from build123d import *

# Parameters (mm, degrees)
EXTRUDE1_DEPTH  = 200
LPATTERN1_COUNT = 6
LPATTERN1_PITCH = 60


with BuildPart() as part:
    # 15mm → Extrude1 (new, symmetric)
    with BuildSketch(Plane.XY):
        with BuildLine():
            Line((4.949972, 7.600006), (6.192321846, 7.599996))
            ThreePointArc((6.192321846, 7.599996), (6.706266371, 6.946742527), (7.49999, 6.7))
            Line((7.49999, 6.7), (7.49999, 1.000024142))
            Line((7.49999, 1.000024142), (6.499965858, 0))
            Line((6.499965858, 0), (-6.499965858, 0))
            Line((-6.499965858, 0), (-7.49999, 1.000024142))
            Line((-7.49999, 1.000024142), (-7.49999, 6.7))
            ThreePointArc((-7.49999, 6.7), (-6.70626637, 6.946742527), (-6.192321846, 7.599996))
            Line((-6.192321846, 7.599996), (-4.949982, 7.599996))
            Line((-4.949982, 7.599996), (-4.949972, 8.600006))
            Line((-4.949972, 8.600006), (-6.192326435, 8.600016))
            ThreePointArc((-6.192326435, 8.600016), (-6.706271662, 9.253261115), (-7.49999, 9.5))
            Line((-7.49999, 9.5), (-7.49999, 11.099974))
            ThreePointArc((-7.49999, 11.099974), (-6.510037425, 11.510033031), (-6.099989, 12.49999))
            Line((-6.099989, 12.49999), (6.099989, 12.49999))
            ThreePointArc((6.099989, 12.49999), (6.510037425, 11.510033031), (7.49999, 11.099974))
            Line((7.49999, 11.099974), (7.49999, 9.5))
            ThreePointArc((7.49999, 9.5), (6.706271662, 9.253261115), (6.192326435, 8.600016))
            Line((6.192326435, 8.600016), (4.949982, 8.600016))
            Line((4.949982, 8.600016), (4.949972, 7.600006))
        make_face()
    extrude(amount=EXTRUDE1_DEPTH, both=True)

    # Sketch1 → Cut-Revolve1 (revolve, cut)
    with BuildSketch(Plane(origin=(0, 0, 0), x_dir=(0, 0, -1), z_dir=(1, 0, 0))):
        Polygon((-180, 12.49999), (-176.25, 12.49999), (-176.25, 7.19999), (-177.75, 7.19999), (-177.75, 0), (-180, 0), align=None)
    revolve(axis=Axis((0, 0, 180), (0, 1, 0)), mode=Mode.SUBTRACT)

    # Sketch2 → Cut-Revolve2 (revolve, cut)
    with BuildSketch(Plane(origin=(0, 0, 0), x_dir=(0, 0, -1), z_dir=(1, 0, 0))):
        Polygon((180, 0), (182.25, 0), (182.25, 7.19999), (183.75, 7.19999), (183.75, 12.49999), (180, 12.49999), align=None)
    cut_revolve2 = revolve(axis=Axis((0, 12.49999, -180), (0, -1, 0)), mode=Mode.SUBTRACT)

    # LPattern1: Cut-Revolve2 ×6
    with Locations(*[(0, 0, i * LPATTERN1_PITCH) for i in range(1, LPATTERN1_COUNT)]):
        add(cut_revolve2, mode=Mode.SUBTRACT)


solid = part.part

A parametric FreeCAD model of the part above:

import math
import FreeCAD as App
import Part
import Sketcher

V = App.Vector
Q = App.Units.Quantity

doc = App.newDocument("Part")
body = doc.addObject("PartDesign::Body", "Body")

sketch1 = doc.addObject("Sketcher::SketchObject", "Sketch")
body.addObject(sketch1)
sketch1.AttachmentSupport = (doc.XY_Plane, [""])
sketch1.MapMode = "FlatFace"
sketch1.addGeometry([
    Part.LineSegment(V(6.192322, 7.599996, 0), V(4.949972, 7.600006, 0)),
    Part.LineSegment(V(4.949972, 7.600006, 0), V(4.949982, 8.600016, 0)),
    Part.LineSegment(V(4.949982, 8.600016, 0), V(6.192326, 8.600016, 0)),
    Part.ArcOfCircle(Part.Circle(V(7.49999, 8.1, 0), V(0, 0, 1), 1.4), math.radians(90), math.radians(159.074467)),
    Part.LineSegment(V(7.49999, 9.5, 0), V(7.49999, 11.099974, 0)),
    Part.ArcOfCircle(Part.Circle(V(7.5, 12.499985, 0), V(0, 0, 1), 1.400011), math.radians(179.999795), math.radians(269.999591)),
    Part.LineSegment(V(6.099989, 12.49999, 0), V(-6.099989, 12.49999, 0)),
    Part.ArcOfCircle(Part.Circle(V(-7.5, 12.499985, 0), V(0, 0, 1), 1.400011), math.radians(-89.999591), math.radians(0.000205)),
    Part.LineSegment(V(-7.49999, 11.099974, 0), V(-7.49999, 9.5, 0)),
    Part.ArcOfCircle(Part.Circle(V(-7.49999, 8.1, 0), V(0, 0, 1), 1.4), math.radians(20.925533), math.radians(90)),
    Part.LineSegment(V(-6.192326, 8.600016, 0), V(-4.949972, 8.600006, 0)),
    Part.LineSegment(V(-4.949972, 8.600006, 0), V(-4.949982, 7.599996, 0)),
    Part.LineSegment(V(-4.949982, 7.599996, 0), V(-6.192322, 7.599996, 0)),
    Part.ArcOfCircle(Part.Circle(V(-7.49999, 8.1, 0), V(0, 0, 1), 1.4), math.radians(-90), math.radians(-20.925008)),
    Part.LineSegment(V(-7.49999, 6.7, 0), V(-7.49999, 1.000024, 0)),
    Part.LineSegment(V(-7.49999, 1.000024, 0), V(-6.499966, 0, 0)),
    Part.LineSegment(V(-6.499966, 0, 0), V(6.499966, 0, 0)),
    Part.LineSegment(V(6.499966, 0, 0), V(7.49999, 1.000024, 0)),
    Part.LineSegment(V(7.49999, 1.000024, 0), V(7.49999, 6.7, 0)),
    Part.ArcOfCircle(Part.Circle(V(7.49999, 8.1, 0), V(0, 0, 1), 1.4), math.radians(-159.074992), math.radians(-90)),
], False)
sketch1.addConstraint([
    Sketcher.Constraint("Coincident", 0, 2, 1, 1),
    Sketcher.Constraint("Coincident", 1, 2, 2, 1),
    Sketcher.Constraint("Coincident", 2, 2, 3, 2),
    Sketcher.Constraint("Coincident", 3, 1, 4, 1),
    Sketcher.Constraint("Coincident", 4, 2, 5, 2),
    Sketcher.Constraint("Coincident", 5, 1, 6, 1),
    Sketcher.Constraint("Coincident", 6, 2, 7, 2),
    Sketcher.Constraint("Coincident", 7, 1, 8, 1),
    Sketcher.Constraint("Coincident", 8, 2, 9, 2),
    Sketcher.Constraint("Coincident", 9, 1, 10, 1),
    Sketcher.Constraint("Coincident", 10, 2, 11, 1),
    Sketcher.Constraint("Coincident", 11, 2, 12, 1),
    Sketcher.Constraint("Coincident", 12, 2, 13, 2),
    Sketcher.Constraint("Coincident", 13, 1, 14, 1),
    Sketcher.Constraint("Coincident", 14, 2, 15, 1),
    Sketcher.Constraint("Coincident", 15, 2, 16, 1),
    Sketcher.Constraint("Coincident", 16, 2, 17, 1),
    Sketcher.Constraint("Coincident", 17, 2, 18, 1),
    Sketcher.Constraint("Coincident", 18, 2, 19, 2),
    Sketcher.Constraint("Coincident", 19, 1, 0, 1),
    Sketcher.Constraint("Horizontal", 2),
    Sketcher.Constraint("Vertical", 4),
    Sketcher.Constraint("Horizontal", 6),
    Sketcher.Constraint("Vertical", 8),
    Sketcher.Constraint("Horizontal", 12),
    Sketcher.Constraint("Vertical", 14),
    Sketcher.Constraint("Horizontal", 16),
    Sketcher.Constraint("Vertical", 18),
    Sketcher.Constraint("Coincident", 13, 3, 9, 3),
    Sketcher.Constraint("Coincident", 19, 3, 3, 3),
    Sketcher.Constraint("Equal", 5, 7),
    Sketcher.Constraint("Equal", 3, 9),
    Sketcher.Constraint("Equal", 9, 13),
    Sketcher.Constraint("Equal", 13, 19),
    Sketcher.Constraint("Symmetric", 15, 2, 16, 2, -1, 1),
    Sketcher.Constraint("Symmetric", 5, 3, 7, 3, -2),
    Sketcher.Constraint("Symmetric", 3, 3, 9, 3, -2),
    Sketcher.Constraint("Symmetric", 14, 2, 17, 2, -2),
    Sketcher.Constraint("Perpendicular", 0, 1),
    Sketcher.Constraint("Perpendicular", 1, 10),
    Sketcher.Constraint("Perpendicular", 10, 11),
    Sketcher.Constraint("Perpendicular", 15, 17),
    Sketcher.Constraint("Horizontal", 2, 2, 9, 1),
    Sketcher.Constraint("Horizontal", 12, 2, 19, 1),
    Sketcher.Constraint("Vertical", 19, 3, 3, 1),
    Sketcher.Constraint("Vertical", 13, 3, 7, 1),
    Sketcher.Constraint("Vertical", 8, 2, 13, 1),
    Sketcher.Constraint("Radius", 3, Q("1.4 mm")),
    Sketcher.Constraint("DistanceX", 7, 3, 5, 3, Q("15 mm")),
    Sketcher.Constraint("DistanceY", -1, 1, 3, 3, Q("8.1 mm")),
    Sketcher.Constraint("DistanceX", 5, 1, 4, 2, Q("1.400001 mm")),
    Sketcher.Constraint("Radius", 5, Q("1.400011 mm")),
    Sketcher.Constraint("DistanceX", 12, 2, 12, 1, Q("1.24234 mm")),
    Sketcher.Constraint("DistanceX", 16, 1, 16, 2, Q("12.999932 mm")),
    Sketcher.Constraint("Distance", 0, Q("1.24235 mm")),
    Sketcher.Constraint("Distance", 1, Q("1.00001 mm")),
    Sketcher.Constraint("DistanceX", 2, 1, 2, 2, Q("1.242344 mm")),
    Sketcher.Constraint("DistanceY", 4, 1, 4, 2, Q("1.599974 mm")),
    Sketcher.Constraint("DistanceX", -1, 1, 0, 2, Q("4.949972 mm")),
    Sketcher.Constraint("DistanceY", -1, 1, 5, 1, Q("12.49999 mm")),
])
pad1 = doc.addObject("PartDesign::Pad", "Pad")
body.addObject(pad1)
pad1.Profile = sketch1
pad1.Length = 400
pad1.Midplane = True

sketch2 = doc.addObject("Sketcher::SketchObject", "Sketch001")
body.addObject(sketch2)
sketch2.AttachmentSupport = (doc.YZ_Plane, [""])
sketch2.MapMode = "FlatFace"
sketch2.addGeometry([
    Part.LineSegment(V(12.49999, 176.25, 0), V(12.49999, 180, 0)),
    Part.LineSegment(V(12.49999, 180, 0), V(0, 180, 0)),
    Part.LineSegment(V(0, 180, 0), V(0, 177.75, 0)),
    Part.LineSegment(V(0, 177.75, 0), V(7.19999, 177.75, 0)),
    Part.LineSegment(V(7.19999, 177.75, 0), V(7.19999, 176.25, 0)),
    Part.LineSegment(V(7.19999, 176.25, 0), V(12.49999, 176.25, 0)),
], False)
sketch2.addGeometry(Part.LineSegment(V(0, 180, 0), V(12.49999, 180, 0)), True)
sketch2.addConstraint([
    Sketcher.Constraint("Coincident", 0, 2, 1, 1),
    Sketcher.Constraint("Coincident", 1, 2, 2, 1),
    Sketcher.Constraint("Coincident", 2, 2, 3, 1),
    Sketcher.Constraint("Coincident", 3, 2, 4, 1),
    Sketcher.Constraint("Coincident", 4, 2, 5, 1),
    Sketcher.Constraint("Coincident", 5, 2, 0, 1),
    Sketcher.Constraint("Vertical", 0),
    Sketcher.Constraint("Horizontal", 1),
    Sketcher.Constraint("Vertical", 2),
    Sketcher.Constraint("Horizontal", 3),
    Sketcher.Constraint("Vertical", 4),
    Sketcher.Constraint("Horizontal", 5),
    Sketcher.Constraint("Horizontal", 6),
    Sketcher.Constraint("Coincident", 6, 1, 1, 2),
    Sketcher.Constraint("PointOnObject", 1, 2, -2),
    Sketcher.Constraint("Vertical", 5, 2, 6, 2),
    Sketcher.Constraint("DistanceX", 5, 1, 5, 2, Q("5.3 mm")),
    Sketcher.Constraint("DistanceY", 4, 2, 4, 1, Q("1.5 mm")),
    Sketcher.Constraint("DistanceY", -1, 1, 0, 2, Q("180 mm")),
    Sketcher.Constraint("DistanceY", 0, 1, 0, 2, Q("3.75 mm")),
    Sketcher.Constraint("DistanceX", 1, 2, 1, 1, Q("12.49999 mm")),
])
groove = doc.addObject("PartDesign::Groove", "Groove")
body.addObject(groove)
groove.Profile = sketch2
groove.ReferenceAxis = (sketch2, ["Axis0"])
groove.Angle = 360

sketch3 = doc.addObject("Sketcher::SketchObject", "Sketch002")
body.addObject(sketch3)
sketch3.AttachmentSupport = (doc.YZ_Plane, [""])
sketch3.MapMode = "FlatFace"
sketch3.addGeometry([
    Part.LineSegment(V(0, -180, 0), V(0, -182.25, 0)),
    Part.LineSegment(V(0, -182.25, 0), V(7.19999, -182.25, 0)),
    Part.LineSegment(V(7.19999, -182.25, 0), V(7.19999, -183.75, 0)),
    Part.LineSegment(V(7.19999, -183.75, 0), V(12.49999, -183.75, 0)),
    Part.LineSegment(V(12.49999, -183.75, 0), V(12.49999, -180, 0)),
    Part.LineSegment(V(12.49999, -180, 0), V(0, -180, 0)),
], False)
sketch3.addGeometry(Part.LineSegment(V(12.49999, -180, 0), V(0, -180, 0)), True)
sketch3.addConstraint([
    Sketcher.Constraint("Coincident", 0, 2, 1, 1),
    Sketcher.Constraint("Coincident", 1, 2, 2, 1),
    Sketcher.Constraint("Coincident", 2, 2, 3, 1),
    Sketcher.Constraint("Coincident", 3, 2, 4, 1),
    Sketcher.Constraint("Coincident", 4, 2, 5, 1),
    Sketcher.Constraint("Coincident", 5, 2, 0, 1),
    Sketcher.Constraint("Vertical", 0),
    Sketcher.Constraint("Horizontal", 1),
    Sketcher.Constraint("Vertical", 2),
    Sketcher.Constraint("Horizontal", 3),
    Sketcher.Constraint("Vertical", 4),
    Sketcher.Constraint("Horizontal", 5),
    Sketcher.Constraint("Horizontal", 6),
    Sketcher.Constraint("Coincident", 6, 1, 4, 2),
    Sketcher.Constraint("PointOnObject", 0, 2, -2),
    Sketcher.Constraint("PointOnObject", 6, 2, -2),
    Sketcher.Constraint("DistanceX", 3, 1, 3, 2, Q("5.3 mm")),
    Sketcher.Constraint("DistanceY", 2, 2, 2, 1, Q("1.5 mm")),
    Sketcher.Constraint("DistanceY", 4, 2, -1, 1, Q("180 mm")),
    Sketcher.Constraint("DistanceY", 0, 2, 0, 1, Q("2.25 mm")),
    Sketcher.Constraint("DistanceX", 1, 1, 1, 2, Q("7.19999 mm")),
])
groove2 = doc.addObject("PartDesign::Groove", "Groove001")
body.addObject(groove2)
groove2.Profile = sketch3
groove2.ReferenceAxis = (sketch3, ["Axis0"])
groove2.Angle = 360
doc.recompute()

linearpattern = doc.addObject("PartDesign::LinearPattern", "LinearPattern")
body.addObject(linearpattern)
linearpattern.Originals = [groove2]
linearpattern.Direction = (doc.Z_Axis, [""])
linearpattern.Mode = "offset"
linearpattern.Offset = 60
linearpattern.Occurrences = 6
body.Tip = linearpattern

doc.recompute()
